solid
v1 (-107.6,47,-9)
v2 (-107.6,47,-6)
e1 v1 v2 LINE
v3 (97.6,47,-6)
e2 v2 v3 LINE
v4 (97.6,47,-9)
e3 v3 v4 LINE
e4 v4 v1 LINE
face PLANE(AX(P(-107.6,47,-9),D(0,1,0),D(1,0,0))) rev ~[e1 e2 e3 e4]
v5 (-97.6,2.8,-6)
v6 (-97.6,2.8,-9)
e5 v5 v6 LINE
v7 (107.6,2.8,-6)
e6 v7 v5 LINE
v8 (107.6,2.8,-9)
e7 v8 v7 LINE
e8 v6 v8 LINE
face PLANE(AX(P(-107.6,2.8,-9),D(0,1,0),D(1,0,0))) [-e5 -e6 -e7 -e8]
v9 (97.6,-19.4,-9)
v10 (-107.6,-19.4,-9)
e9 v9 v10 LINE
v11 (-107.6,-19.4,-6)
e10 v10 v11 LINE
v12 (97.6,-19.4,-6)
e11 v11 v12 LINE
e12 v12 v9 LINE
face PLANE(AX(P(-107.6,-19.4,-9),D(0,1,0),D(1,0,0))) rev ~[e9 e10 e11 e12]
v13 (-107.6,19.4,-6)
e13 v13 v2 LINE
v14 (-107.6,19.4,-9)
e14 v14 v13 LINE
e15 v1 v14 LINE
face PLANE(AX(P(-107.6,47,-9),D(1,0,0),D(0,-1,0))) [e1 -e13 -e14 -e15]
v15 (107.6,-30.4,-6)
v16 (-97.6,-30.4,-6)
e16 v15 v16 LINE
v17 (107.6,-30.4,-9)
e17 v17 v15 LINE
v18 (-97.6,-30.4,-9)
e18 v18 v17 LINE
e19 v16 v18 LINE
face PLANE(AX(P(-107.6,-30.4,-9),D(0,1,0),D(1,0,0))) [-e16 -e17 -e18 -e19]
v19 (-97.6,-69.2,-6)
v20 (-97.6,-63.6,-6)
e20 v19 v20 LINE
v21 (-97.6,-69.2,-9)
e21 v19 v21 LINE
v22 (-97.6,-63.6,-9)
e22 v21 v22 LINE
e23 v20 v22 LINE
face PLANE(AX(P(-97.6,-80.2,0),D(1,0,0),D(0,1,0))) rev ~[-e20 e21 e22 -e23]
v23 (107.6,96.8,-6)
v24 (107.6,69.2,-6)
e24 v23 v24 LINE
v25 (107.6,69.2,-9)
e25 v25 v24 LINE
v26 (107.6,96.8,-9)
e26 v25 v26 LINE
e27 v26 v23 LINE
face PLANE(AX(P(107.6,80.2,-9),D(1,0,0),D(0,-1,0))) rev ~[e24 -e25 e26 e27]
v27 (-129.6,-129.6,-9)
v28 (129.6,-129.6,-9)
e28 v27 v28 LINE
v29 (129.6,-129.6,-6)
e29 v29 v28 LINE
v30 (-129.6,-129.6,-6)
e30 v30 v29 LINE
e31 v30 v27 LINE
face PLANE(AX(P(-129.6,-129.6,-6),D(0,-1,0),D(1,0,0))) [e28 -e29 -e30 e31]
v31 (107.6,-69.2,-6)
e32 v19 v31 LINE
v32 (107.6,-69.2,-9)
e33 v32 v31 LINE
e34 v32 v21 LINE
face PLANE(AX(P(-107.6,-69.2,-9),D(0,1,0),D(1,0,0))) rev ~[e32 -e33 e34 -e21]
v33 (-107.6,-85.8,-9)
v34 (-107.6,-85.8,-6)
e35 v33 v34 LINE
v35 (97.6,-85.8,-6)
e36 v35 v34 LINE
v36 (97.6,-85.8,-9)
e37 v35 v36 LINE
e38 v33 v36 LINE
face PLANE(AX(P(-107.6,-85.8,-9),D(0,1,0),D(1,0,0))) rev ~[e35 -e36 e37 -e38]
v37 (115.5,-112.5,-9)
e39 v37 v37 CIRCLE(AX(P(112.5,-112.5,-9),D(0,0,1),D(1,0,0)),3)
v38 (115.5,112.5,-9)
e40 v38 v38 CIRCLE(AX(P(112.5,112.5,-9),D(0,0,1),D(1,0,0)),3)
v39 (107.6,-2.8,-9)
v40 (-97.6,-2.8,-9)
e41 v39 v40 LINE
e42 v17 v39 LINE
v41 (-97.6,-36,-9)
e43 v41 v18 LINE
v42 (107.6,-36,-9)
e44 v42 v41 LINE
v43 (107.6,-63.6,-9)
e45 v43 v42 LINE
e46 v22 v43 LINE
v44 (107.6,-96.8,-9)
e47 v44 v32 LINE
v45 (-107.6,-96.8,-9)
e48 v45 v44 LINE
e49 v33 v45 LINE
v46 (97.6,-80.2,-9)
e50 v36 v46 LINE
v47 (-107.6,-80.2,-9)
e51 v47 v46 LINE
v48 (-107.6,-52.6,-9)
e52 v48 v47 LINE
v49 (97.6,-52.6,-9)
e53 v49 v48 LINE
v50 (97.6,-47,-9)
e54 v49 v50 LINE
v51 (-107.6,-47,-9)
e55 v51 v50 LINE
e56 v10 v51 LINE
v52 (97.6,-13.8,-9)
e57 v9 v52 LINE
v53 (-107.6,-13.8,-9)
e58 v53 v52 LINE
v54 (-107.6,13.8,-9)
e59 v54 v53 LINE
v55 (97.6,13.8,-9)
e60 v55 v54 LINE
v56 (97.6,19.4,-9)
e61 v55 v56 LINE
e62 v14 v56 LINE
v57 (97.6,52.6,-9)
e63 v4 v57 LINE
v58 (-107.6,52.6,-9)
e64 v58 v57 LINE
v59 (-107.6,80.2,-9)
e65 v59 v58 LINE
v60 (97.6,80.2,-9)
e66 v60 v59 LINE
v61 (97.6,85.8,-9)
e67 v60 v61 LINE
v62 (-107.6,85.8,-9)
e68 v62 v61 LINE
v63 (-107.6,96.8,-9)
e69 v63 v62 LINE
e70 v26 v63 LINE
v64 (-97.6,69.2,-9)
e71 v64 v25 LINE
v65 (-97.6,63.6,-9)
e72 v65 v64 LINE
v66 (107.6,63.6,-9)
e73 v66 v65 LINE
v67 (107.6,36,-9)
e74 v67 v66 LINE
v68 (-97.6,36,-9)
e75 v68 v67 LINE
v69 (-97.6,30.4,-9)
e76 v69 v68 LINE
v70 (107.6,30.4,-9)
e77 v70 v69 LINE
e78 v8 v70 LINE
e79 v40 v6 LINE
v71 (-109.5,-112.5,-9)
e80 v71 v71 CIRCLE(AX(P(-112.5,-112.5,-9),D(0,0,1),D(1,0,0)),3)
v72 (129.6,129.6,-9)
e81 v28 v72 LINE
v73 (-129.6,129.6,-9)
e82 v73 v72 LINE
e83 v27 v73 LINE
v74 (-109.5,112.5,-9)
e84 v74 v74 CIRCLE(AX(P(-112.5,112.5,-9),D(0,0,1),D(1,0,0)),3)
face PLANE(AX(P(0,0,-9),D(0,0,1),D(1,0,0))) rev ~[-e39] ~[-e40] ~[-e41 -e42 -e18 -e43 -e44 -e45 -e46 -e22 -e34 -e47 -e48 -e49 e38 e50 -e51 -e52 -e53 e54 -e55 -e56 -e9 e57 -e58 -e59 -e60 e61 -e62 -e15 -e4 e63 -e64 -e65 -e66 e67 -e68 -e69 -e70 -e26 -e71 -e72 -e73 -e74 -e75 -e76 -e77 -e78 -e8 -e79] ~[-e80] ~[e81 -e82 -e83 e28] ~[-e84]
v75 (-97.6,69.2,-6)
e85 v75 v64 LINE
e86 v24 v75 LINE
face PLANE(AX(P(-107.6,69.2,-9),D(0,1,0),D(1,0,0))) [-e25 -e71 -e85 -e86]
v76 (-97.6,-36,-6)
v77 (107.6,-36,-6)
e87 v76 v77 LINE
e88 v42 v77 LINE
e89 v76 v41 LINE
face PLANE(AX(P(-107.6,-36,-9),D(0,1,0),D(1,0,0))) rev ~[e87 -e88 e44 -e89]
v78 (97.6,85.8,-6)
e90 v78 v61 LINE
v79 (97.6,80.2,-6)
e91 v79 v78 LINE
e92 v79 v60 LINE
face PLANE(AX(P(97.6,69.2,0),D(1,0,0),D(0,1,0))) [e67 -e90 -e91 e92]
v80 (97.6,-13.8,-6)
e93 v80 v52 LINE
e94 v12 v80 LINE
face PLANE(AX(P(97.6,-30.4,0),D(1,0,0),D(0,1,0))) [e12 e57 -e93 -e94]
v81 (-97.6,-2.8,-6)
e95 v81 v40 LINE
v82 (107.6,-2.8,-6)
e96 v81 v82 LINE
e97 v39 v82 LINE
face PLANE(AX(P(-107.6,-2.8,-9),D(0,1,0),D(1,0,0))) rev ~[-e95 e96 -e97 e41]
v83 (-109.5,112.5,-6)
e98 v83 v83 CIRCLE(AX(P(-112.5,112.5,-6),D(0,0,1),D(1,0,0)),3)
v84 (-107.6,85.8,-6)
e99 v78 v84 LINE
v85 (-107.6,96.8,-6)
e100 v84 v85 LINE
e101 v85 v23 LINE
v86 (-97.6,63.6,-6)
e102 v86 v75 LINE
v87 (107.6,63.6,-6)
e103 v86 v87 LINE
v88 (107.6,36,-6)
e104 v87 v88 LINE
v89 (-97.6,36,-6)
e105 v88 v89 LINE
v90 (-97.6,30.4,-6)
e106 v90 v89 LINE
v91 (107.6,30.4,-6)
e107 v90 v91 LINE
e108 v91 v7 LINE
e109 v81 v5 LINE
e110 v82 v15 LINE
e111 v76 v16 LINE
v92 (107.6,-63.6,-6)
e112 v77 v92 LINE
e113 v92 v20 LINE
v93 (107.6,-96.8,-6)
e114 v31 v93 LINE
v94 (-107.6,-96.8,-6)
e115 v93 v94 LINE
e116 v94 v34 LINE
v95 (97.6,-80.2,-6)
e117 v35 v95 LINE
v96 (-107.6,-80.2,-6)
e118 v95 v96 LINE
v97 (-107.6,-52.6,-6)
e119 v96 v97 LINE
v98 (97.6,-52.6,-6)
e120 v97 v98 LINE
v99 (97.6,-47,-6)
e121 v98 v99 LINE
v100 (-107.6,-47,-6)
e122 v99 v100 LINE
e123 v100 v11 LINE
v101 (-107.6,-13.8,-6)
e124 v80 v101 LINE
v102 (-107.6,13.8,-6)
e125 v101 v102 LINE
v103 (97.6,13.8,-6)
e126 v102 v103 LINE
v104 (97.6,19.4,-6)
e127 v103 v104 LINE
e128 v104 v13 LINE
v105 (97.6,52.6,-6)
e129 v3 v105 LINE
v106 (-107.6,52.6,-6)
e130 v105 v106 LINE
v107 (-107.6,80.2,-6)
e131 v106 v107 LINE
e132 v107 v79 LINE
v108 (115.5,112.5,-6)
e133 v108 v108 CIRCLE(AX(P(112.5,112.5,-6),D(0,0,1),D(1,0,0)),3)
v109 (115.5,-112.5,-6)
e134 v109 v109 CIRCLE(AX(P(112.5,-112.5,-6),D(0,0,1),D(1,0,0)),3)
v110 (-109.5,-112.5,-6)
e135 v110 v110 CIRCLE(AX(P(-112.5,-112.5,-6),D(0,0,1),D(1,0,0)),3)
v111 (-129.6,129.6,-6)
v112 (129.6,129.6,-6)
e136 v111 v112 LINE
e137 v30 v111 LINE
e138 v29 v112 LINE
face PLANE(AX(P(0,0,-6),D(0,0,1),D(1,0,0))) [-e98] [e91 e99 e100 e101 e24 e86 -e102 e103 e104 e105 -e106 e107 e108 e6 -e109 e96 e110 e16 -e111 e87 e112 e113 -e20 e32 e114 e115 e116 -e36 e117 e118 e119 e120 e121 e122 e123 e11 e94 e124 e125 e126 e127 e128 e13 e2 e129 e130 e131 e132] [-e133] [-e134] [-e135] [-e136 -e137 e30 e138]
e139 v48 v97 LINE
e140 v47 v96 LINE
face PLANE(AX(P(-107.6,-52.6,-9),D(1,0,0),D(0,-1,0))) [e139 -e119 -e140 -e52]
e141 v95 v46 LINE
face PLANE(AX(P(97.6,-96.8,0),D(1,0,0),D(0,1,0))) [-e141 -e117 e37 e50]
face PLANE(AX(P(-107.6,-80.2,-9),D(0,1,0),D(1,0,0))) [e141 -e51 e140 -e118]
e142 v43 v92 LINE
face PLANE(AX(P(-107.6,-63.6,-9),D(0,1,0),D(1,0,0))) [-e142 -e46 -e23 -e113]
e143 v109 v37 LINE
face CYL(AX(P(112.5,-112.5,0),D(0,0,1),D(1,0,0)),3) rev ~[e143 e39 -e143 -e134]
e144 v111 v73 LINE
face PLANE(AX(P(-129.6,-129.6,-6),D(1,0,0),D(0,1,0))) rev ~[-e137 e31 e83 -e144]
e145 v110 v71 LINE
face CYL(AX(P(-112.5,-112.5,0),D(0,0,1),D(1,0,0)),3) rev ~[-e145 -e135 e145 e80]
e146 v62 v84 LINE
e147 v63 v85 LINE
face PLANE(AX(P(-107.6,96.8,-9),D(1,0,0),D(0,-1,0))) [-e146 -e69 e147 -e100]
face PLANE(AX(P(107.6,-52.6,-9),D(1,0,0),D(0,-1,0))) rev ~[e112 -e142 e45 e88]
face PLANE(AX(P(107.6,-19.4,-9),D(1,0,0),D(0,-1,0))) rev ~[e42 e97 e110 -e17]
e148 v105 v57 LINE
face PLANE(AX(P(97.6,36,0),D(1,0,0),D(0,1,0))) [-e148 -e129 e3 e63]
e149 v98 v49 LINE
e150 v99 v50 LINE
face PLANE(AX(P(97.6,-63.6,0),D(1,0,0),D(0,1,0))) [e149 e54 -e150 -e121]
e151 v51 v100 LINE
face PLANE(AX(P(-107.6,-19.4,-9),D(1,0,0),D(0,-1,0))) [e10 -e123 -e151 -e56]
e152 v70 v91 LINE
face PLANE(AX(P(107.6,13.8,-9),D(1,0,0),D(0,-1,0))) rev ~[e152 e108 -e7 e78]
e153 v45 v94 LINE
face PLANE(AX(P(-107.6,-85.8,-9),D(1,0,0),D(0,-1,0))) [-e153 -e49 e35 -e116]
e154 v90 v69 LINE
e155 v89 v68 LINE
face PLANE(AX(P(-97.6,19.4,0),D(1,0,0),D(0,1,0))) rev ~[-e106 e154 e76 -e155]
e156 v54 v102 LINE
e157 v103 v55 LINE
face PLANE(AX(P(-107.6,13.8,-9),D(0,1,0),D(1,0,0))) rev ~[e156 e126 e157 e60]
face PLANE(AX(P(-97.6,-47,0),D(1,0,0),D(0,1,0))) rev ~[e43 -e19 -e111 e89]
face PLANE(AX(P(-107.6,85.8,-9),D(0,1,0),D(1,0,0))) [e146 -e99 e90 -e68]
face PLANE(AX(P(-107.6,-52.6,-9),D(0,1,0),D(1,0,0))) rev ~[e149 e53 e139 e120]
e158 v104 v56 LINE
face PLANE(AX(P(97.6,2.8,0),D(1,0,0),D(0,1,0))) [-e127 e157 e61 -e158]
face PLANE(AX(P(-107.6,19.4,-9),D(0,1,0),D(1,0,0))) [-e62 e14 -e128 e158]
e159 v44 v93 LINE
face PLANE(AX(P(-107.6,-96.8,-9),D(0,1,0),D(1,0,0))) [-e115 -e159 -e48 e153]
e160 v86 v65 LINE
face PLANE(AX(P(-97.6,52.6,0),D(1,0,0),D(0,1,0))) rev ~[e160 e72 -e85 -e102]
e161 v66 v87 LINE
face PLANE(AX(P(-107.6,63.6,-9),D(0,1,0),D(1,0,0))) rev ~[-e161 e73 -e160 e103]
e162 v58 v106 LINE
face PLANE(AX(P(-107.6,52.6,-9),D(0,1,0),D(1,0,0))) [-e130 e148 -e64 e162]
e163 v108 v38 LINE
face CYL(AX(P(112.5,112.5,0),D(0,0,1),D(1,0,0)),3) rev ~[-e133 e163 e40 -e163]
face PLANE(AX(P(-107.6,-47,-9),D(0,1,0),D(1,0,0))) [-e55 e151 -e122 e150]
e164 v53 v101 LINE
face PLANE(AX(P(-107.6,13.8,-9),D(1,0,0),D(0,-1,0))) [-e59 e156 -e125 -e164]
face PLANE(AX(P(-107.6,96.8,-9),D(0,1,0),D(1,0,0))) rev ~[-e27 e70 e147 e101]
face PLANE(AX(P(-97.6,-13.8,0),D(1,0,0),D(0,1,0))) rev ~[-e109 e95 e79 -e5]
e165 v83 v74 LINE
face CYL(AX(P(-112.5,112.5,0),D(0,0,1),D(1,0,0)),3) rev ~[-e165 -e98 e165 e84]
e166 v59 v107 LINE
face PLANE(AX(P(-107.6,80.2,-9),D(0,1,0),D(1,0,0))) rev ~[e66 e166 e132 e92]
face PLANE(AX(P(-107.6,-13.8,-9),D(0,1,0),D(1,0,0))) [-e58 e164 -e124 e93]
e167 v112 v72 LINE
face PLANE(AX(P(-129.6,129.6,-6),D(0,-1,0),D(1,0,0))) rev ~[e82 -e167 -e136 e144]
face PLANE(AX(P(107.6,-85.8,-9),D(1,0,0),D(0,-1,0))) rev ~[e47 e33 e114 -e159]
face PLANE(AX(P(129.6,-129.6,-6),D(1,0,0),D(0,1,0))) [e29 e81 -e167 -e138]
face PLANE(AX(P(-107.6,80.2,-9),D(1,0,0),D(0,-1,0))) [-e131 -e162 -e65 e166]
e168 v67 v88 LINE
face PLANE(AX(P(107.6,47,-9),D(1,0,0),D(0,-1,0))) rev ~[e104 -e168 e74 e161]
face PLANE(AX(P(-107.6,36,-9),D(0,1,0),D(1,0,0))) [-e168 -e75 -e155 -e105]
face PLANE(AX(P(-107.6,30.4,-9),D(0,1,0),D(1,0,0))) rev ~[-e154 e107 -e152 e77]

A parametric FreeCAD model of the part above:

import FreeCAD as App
import Part
import Sketcher
from FreeCAD import Vector
Q = App.Units.Quantity

doc = App.newDocument("Part")
params = doc.addObject("Spreadsheet::Sheet", "Params")
for row, (alias, value) in enumerate([
    ("sketch1_width", "259.2 mm"),
    ("pad1_length", "3 mm"),
    ("sketch2_height", "11 mm"),
    ("sketch2_width", "215.2 mm"),
    ("linearpattern_pitch", "16.6 mm"),
    ("sketch3_width", "10 mm"),
    ("sketch3_height", "27.6 mm"),
    ("linearpattern2_pitch", "33.2 mm"),
    ("sketch4_width", "10 mm"),
    ("sketch4_height", "27.6 mm"),
    ("linearpattern3_pitch", "33.2 mm"),
    ("sketch5_diameter", "6 mm"),
], start=1):
    params.set(f"A{row}", alias)
    params.set(f"B{row}", "=" + value)
    params.setAlias(f"B{row}", alias)

body = doc.addObject("PartDesign::Body", "Body")

# Sketch on XY plane
sketch1 = body.newObject("Sketcher::SketchObject", "Sketch")
sketch1.AttachmentSupport = (doc.getObject("XY_Plane"), [""])
sketch1.MapMode = "FlatFace"
sketch1.AttachmentOffset = App.Placement(Vector(0, 0, -6), App.Rotation())
sketch1.addGeometry(Part.LineSegment(Vector(-130, 130, 0), Vector(-130, -130, 0)), False)
sketch1.addGeometry(Part.LineSegment(Vector(-130, -130, 0), Vector(130, -130, 0)), False)
sketch1.addGeometry(Part.LineSegment(Vector(130, -130, 0), Vector(130, 130, 0)), False)
sketch1.addGeometry(Part.LineSegment(Vector(130, 130, 0), Vector(-130, 130, 0)), False)
sketch1.addConstraint(Sketcher.Constraint("Coincident", 0, 2, 1, 1))
sketch1.addConstraint(Sketcher.Constraint("Coincident", 1, 2, 2, 1))
sketch1.addConstraint(Sketcher.Constraint("Coincident", 2, 2, 3, 1))
sketch1.addConstraint(Sketcher.Constraint("Coincident", 3, 2, 0, 1))
sketch1.addConstraint(Sketcher.Constraint("Vertical", 0))
sketch1.addConstraint(Sketcher.Constraint("Horizontal", 1))
sketch1.addConstraint(Sketcher.Constraint("Vertical", 2))
sketch1.addConstraint(Sketcher.Constraint("Horizontal", 3))
sketch1.addConstraint(Sketcher.Constraint("Symmetric", 0, 2, 2, 2, -1, 1))
sketch1.addConstraint(Sketcher.Constraint("Equal", 3, 0))
sketch1.addConstraint(Sketcher.Constraint("DistanceX", 1, 1, 1, 2, Q("259.2 mm")))
sketch1.setExpression("Constraints[10]", "Params.sketch1_width")
pad1 = body.newObject("PartDesign::Pad", "Pad")
pad1.Profile = sketch1
pad1.setExpression("Length", "Params.pad1_length")
pad1.Reversed = True

# Sketch on XY plane
sketch2 = body.newObject("Sketcher::SketchObject", "Sketch001")
sketch2.AttachmentSupport = (doc.getObject("XY_Plane"), [""])
sketch2.MapMode = "FlatFace"
sketch2.AttachmentOffset = App.Placement(Vector(0, 0, -9), App.Rotation())
sketch2.addGeometry(Part.LineSegment(Vector(-108, -97, 0), Vector(-108, -86, 0)), False)
sketch2.addGeometry(Part.LineSegment(Vector(-108, -86, 0), Vector(108, -86, 0)), False)
sketch2.addGeometry(Part.LineSegment(Vector(108, -86, 0), Vector(108, -97, 0)), False)
sketch2.addGeometry(Part.LineSegment(Vector(108, -97, 0), Vector(-108, -97, 0)), False)
sketch2.addConstraint(Sketcher.Constraint("Coincident", 0, 2, 1, 1))
sketch2.addConstraint(Sketcher.Constraint("Coincident", 1, 2, 2, 1))
sketch2.addConstraint(Sketcher.Constraint("Coincident", 2, 2, 3, 1))
sketch2.addConstraint(Sketcher.Constraint("Coincident", 3, 2, 0, 1))
sketch2.addConstraint(Sketcher.Constraint("Vertical", 0))
sketch2.addConstraint(Sketcher.Constraint("Horizontal", 1))
sketch2.addConstraint(Sketcher.Constraint("Vertical", 2))
sketch2.addConstraint(Sketcher.Constraint("Horizontal", 3))
sketch2.addConstraint(Sketcher.Constraint("DistanceY", 0, 1, 0, 2, Q("11 mm")))
sketch2.addConstraint(Sketcher.Constraint("DistanceX", 1, 1, 1, 2, Q("215.2 mm")))
sketch2.addConstraint(Sketcher.Constraint("DistanceX", 0, 2, -1, 1, Q("107.6 mm")))
sketch2.addConstraint(Sketcher.Constraint("DistanceY", 0, 2, -1, 1, Q("85.8 mm")))
sketch2.setExpression("Constraints[8]", "Params.sketch2_height")
sketch2.setExpression("Constraints[9]", "Params.sketch2_width")
pocket1 = body.newObject("PartDesign::Pocket", "Pocket")
pocket1.Profile = sketch2
pocket1.Type = "ThroughAll"
pocket1.Reversed = True
doc.recompute()

linearpattern = body.newObject("PartDesign::LinearPattern", "LinearPattern")
linearpattern.Originals = [pocket1]
linearpattern.Direction = (doc.getObject("Y_Axis"), [""])
linearpattern.Mode = "offset"
linearpattern.setExpression("Offset", "Params.linearpattern_pitch")
linearpattern.Occurrences = 12
body.Tip = linearpattern

# Sketch on XY plane
sketch3 = body.newObject("Sketcher::SketchObject", "Sketch002")
sketch3.AttachmentSupport = (doc.getObject("XY_Plane"), [""])
sketch3.MapMode = "FlatFace"
sketch3.addGeometry(Part.LineSegment(Vector(98, 97, 0), Vector(98, 69, 0)), False)
sketch3.addGeometry(Part.LineSegment(Vector(98, 69, 0), Vector(108, 69, 0)), False)
sketch3.addGeometry(Part.LineSegment(Vector(108, 69, 0), Vector(108, 97, 0)), False)
sketch3.addGeometry(Part.LineSegment(Vector(108, 97, 0), Vector(98, 97, 0)), False)
sketch3.addConstraint(Sketcher.Constraint("Coincident", 0, 2, 1, 1))
sketch3.addConstraint(Sketcher.Constraint("Coincident", 1, 2, 2, 1))
sketch3.addConstraint(Sketcher.Constraint("Coincident", 2, 2, 3, 1))
sketch3.addConstraint(Sketcher.Constraint("Coincident", 3, 2, 0, 1))
sketch3.addConstraint(Sketcher.Constraint("Vertical", 0))
sketch3.addConstraint(Sketcher.Constraint("Horizontal", 1))
sketch3.addConstraint(Sketcher.Constraint("Vertical", 2))
sketch3.addConstraint(Sketcher.Constraint("Horizontal", 3))
sketch3.addConstraint(Sketcher.Constraint("DistanceX", 1, 1, 1, 2, Q("10 mm")))
sketch3.addConstraint(Sketcher.Constraint("DistanceY", 0, 2, 0, 1, Q("27.6 mm")))
sketch3.addConstraint(Sketcher.Constraint("DistanceX", -1, 1, 0, 2, Q("97.6 mm")))
sketch3.addConstraint(Sketcher.Constraint("DistanceY", -1, 1, 0, 2, Q("69.2 mm")))
sketch3.setExpression("Constraints[8]", "Params.sketch3_width")
sketch3.setExpression("Constraints[9]", "Params.sketch3_height")
pocket2 = body.newObject("PartDesign::Pocket", "Pocket001")
pocket2.Profile = sketch3
pocket2.Type = "ThroughAll"
doc.recompute()

linearpattern2 = body.newObject("PartDesign::LinearPattern", "LinearPattern001")
linearpattern2.Originals = [pocket2]
linearpattern2.Direction = (doc.getObject("Y_Axis"), [""])
linearpattern2.Mode = "offset"
linearpattern2.setExpression("Offset", "Params.linearpattern2_pitch")
linearpattern2.Occurrences = 6
linearpattern2.Reversed = True
body.Tip = linearpattern2

# Sketch on XY plane
sketch4 = body.newObject("Sketcher::SketchObject", "Sketch003")
sketch4.AttachmentSupport = (doc.getObject("XY_Plane"), [""])
sketch4.MapMode = "FlatFace"
sketch4.addGeometry(Part.LineSegment(Vector(-108, 80, 0), Vector(-108, 53, 0)), False)
sketch4.addGeometry(Part.LineSegment(Vector(-108, 53, 0), Vector(-98, 53, 0)), False)
sketch4.addGeometry(Part.LineSegment(Vector(-98, 53, 0), Vector(-98, 80, 0)), False)
sketch4.addGeometry(Part.LineSegment(Vector(-98, 80, 0), Vector(-108, 80, 0)), False)
sketch4.addConstraint(Sketcher.Constraint("Coincident", 0, 2, 1, 1))
sketch4.addConstraint(Sketcher.Constraint("Coincident", 1, 2, 2, 1))
sketch4.addConstraint(Sketcher.Constraint("Coincident", 2, 2, 3, 1))
sketch4.addConstraint(Sketcher.Constraint("Coincident", 3, 2, 0, 1))
sketch4.addConstraint(Sketcher.Constraint("Vertical", 0))
sketch4.addConstraint(Sketcher.Constraint("Horizontal", 1))
sketch4.addConstraint(Sketcher.Constraint("Vertical", 2))
sketch4.addConstraint(Sketcher.Constraint("Horizontal", 3))
sketch4.addConstraint(Sketcher.Constraint("DistanceX", 1, 1, 1, 2, Q("10 mm")))
sketch4.addConstraint(Sketcher.Constraint("DistanceY", 0, 2, 0, 1, Q("27.6 mm")))
sketch4.addConstraint(Sketcher.Constraint("DistanceX", 0, 2, -1, 1, Q("107.6 mm")))
sketch4.addConstraint(Sketcher.Constraint("DistanceY", -1, 1, 0, 2, Q("52.6 mm")))
sketch4.setExpression("Constraints[8]", "Params.sketch4_width")
sketch4.setExpression("Constraints[9]", "Params.sketch4_height")
pocket3 = body.newObject("PartDesign::Pocket", "Pocket002")
pocket3.Profile = sketch4
pocket3.Type = "ThroughAll"
doc.recompute()

linearpattern3 = body.newObject("PartDesign::LinearPattern", "LinearPattern002")
linearpattern3.Originals = [pocket3]
linearpattern3.Direction = (doc.getObject("Y_Axis"), [""])
linearpattern3.Mode = "offset"
linearpattern3.setExpression("Offset", "Params.linearpattern3_pitch")
linearpattern3.Occurrences = 5
linearpattern3.Reversed = True
body.Tip = linearpattern3

# Sketch on XY plane
sketch5 = body.newObject("Sketcher::SketchObject", "Sketch004")
sketch5.AttachmentSupport = (doc.getObject("XY_Plane"), [""])
sketch5.MapMode = "FlatFace"
sketch5.addGeometry(Part.Circle(Vector(-112.5, 112.5, 0), Vector(0, 0, 1), 3), False)
sketch5.addGeometry(Part.Circle(Vector(112.5, 112.5, 0), Vector(0, 0, 1), 3), False)
sketch5.addGeometry(Part.Circle(Vector(112.5, -112.5, 0), Vector(0, 0, 1), 3), False)
sketch5.addGeometry(Part.Circle(Vector(-112.5, -112.5, 0), Vector(0, 0, 1), 3), False)
sketch5.addConstraint(Sketcher.Constraint("Equal", 0, 1))
sketch5.addConstraint(Sketcher.Constraint("Equal", 1, 2))
sketch5.addConstraint(Sketcher.Constraint("Equal", 2, 3))
sketch5.addConstraint(Sketcher.Constraint("Symmetric", 0, 3, 2, 3, -1, 1))
sketch5.addConstraint(Sketcher.Constraint("Symmetric", 1, 3, 3, 3, -1, 1))
sketch5.addConstraint(Sketcher.Constraint("Symmetric", 0, 3, 1, 3, -2))
sketch5.addConstraint(Sketcher.Constraint("Diameter", 0, Q("6 mm")))
sketch5.addConstraint(Sketcher.Constraint("DistanceX", 0, 3, 1, 3, Q("225 mm")))
sketch5.addConstraint(Sketcher.Constraint("DistanceY", 2, 3, 1, 3, Q("225 mm")))
sketch5.setExpression("Constraints[6]", "Params.sketch5_diameter")
pocket4 = body.newObject("PartDesign::Pocket", "Pocket003")
pocket4.Profile = sketch5
pocket4.Type = "ThroughAll"

doc.recompute()
